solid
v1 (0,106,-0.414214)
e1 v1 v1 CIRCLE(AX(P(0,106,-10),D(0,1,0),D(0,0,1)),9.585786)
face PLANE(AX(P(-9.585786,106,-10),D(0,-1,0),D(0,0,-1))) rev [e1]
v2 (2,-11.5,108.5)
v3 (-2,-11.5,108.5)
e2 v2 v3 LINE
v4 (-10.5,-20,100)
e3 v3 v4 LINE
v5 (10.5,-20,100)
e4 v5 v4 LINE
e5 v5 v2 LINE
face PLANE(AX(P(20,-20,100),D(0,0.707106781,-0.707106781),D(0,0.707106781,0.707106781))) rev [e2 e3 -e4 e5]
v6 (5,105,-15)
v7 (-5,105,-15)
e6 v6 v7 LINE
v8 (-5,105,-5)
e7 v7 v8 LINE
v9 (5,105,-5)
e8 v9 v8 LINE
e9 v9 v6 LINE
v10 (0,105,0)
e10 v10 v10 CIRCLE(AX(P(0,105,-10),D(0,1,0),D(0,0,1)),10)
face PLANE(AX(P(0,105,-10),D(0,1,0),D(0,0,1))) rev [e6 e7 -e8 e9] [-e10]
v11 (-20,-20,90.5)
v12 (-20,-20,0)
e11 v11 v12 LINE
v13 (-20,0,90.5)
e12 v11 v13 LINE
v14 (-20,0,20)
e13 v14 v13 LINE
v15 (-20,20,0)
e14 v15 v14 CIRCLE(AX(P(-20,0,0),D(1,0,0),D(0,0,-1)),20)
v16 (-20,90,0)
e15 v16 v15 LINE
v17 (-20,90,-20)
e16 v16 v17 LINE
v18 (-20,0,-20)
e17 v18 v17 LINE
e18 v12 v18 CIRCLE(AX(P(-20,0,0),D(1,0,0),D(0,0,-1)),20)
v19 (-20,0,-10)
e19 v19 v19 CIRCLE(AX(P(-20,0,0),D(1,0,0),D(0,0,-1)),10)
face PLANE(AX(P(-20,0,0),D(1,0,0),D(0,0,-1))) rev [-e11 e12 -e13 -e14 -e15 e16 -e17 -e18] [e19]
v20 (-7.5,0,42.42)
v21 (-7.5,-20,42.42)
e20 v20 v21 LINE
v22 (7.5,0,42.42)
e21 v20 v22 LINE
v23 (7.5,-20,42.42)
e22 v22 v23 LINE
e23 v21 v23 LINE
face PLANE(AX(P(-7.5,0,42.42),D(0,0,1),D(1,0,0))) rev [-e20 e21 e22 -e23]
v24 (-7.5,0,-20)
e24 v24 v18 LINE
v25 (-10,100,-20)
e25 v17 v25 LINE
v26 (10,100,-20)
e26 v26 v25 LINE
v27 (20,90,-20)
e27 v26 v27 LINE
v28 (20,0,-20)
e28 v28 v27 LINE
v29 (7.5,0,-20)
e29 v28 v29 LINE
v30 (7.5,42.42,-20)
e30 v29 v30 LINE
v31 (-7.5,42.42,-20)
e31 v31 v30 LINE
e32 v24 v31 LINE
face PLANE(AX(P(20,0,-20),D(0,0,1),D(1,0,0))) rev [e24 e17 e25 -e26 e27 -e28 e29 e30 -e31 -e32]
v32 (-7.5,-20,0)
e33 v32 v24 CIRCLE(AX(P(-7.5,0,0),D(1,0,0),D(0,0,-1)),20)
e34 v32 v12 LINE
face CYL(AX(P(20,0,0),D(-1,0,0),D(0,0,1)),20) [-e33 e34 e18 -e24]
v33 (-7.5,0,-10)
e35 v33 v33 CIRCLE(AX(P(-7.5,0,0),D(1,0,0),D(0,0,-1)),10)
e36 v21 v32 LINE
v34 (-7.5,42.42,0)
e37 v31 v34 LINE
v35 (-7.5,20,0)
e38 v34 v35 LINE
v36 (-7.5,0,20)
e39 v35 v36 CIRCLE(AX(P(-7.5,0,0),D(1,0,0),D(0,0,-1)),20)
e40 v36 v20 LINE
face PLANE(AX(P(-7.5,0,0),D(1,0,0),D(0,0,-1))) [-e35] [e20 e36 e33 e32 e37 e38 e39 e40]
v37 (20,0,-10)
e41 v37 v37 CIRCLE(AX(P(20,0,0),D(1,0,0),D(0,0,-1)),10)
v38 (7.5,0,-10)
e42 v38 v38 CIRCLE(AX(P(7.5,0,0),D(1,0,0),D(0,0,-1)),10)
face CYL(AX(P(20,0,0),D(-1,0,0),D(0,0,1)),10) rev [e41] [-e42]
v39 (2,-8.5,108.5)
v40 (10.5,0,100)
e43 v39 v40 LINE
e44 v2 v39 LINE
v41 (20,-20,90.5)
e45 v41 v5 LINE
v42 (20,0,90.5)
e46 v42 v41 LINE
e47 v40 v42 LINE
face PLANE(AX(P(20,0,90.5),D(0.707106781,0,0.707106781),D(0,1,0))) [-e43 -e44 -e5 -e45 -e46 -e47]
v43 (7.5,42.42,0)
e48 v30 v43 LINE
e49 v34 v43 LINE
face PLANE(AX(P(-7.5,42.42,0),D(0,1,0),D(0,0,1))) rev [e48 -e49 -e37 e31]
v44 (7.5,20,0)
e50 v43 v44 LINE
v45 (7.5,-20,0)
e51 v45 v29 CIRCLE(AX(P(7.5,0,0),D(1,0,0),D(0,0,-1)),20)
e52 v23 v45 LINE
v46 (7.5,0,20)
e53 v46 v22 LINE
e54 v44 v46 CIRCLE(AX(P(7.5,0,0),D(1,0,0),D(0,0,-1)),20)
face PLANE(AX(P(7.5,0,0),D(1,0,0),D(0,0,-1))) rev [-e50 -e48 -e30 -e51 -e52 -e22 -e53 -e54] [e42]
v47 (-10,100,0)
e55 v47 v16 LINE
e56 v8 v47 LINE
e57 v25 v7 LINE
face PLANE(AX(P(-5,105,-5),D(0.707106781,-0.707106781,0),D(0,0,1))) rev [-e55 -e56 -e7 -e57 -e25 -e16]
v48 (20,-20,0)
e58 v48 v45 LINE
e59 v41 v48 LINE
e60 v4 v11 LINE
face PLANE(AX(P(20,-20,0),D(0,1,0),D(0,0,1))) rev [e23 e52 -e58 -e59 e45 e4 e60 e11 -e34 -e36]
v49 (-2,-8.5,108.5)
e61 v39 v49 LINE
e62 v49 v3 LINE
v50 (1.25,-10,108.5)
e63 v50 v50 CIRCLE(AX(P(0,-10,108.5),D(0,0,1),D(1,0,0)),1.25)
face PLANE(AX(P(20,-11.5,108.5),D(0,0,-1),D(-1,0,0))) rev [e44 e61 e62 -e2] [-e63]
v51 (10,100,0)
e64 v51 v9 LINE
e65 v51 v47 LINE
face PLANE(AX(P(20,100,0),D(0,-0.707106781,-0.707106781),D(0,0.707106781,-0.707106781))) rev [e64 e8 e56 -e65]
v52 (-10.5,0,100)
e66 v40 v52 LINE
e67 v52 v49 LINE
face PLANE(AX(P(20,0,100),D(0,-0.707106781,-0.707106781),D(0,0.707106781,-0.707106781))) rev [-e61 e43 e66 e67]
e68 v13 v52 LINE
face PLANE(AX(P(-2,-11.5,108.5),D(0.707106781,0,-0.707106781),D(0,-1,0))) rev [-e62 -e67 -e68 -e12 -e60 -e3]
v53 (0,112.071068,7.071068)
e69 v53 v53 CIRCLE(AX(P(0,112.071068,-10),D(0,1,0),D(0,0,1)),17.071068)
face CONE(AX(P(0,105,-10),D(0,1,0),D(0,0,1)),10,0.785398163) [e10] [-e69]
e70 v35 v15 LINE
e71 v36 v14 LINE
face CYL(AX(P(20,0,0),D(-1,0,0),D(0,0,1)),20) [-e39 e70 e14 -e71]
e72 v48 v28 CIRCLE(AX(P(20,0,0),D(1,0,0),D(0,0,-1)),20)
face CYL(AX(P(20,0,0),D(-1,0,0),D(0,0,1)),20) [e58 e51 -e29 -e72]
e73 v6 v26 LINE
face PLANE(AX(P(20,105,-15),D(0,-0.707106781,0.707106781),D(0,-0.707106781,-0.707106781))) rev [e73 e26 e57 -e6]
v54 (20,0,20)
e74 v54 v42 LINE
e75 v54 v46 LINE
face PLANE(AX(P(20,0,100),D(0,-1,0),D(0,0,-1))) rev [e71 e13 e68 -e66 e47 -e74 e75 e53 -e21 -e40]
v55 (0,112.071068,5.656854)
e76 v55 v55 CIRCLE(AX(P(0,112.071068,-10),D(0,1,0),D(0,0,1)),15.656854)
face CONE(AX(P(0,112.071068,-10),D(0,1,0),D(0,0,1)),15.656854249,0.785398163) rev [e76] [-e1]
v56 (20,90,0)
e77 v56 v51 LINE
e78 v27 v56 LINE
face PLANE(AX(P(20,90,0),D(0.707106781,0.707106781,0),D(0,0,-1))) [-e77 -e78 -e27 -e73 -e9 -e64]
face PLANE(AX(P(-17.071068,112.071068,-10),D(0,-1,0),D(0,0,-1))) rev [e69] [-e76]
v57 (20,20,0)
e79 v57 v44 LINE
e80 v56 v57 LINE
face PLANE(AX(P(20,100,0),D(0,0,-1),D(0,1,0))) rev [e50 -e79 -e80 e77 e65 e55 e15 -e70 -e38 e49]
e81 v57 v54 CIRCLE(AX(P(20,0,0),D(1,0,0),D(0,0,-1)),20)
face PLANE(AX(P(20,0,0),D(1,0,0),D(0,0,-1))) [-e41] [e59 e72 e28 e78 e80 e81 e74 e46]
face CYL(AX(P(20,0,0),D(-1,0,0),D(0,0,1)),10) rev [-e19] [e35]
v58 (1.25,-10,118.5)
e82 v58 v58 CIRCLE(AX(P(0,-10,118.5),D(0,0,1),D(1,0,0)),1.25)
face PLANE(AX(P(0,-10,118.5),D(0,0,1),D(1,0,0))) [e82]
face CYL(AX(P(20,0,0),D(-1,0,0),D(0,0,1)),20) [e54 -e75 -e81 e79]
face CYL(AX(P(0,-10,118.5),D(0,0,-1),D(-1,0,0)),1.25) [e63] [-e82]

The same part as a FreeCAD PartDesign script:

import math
import FreeCAD as App
import Part
import Sketcher

V = App.Vector
Q = App.Units.Quantity


def edges_at(feature, points):
    """Names of the edges that pass closest to the given points."""
    edges = feature.Shape.Edges
    near = lambda p: min(range(len(edges)), key=lambda i: edges[i].distToShape(Part.Vertex(*p))[0])
    return sorted({f"Edge{near(p) + 1}" for p in points})


def add_polygon(sketch, points):
    """Adds a closed chain of lines whose ends are joined by coincident constraints."""
    first, n = sketch.GeometryCount, len(points)
    for a, b in zip(points, points[1:] + points[:1]):
        sketch.addGeometry(Part.LineSegment(App.Vector(*a, 0), App.Vector(*b, 0)), False)
    for i in range(n):
        sketch.addConstraint(Sketcher.Constraint("Coincident", first + i, 2, first + (i + 1) % n, 1))

doc = App.newDocument("Part")
body = doc.addObject("PartDesign::Body", "Body")

sketch1 = body.newObject("Sketcher::SketchObject", "Sketch")
sketch1.AttachmentSupport = (doc.getObject("YZ_Plane"), [""])
sketch1.MapMode = "FlatFace"
sketch1.addGeometry(Part.LineSegment(V(0, 100, 0), V(-8.5, 108.5, 0)), False)
sketch1.addGeometry(Part.LineSegment(V(-8.5, 108.5, 0), V(-11.5, 108.5, 0)), False)
sketch1.addGeometry(Part.LineSegment(V(-11.5, 108.5, 0), V(-20, 100, 0)), False)
sketch1.addGeometry(Part.LineSegment(V(-20, 100, 0), V(-20, 0, 0)), False)
sketch1.addGeometry(Part.ArcOfCircle(Part.Circle(V(0, 0, 0), V(0, 0, 1), 20), math.radians(180), math.radians(270)), False)
sketch1.addGeometry(Part.LineSegment(V(0, -20, 0), V(100, -20, 0)), False)
sketch1.addGeometry(Part.LineSegment(V(100, -20, 0), V(105, -15, 0)), False)
sketch1.addGeometry(Part.LineSegment(V(105, -15, 0), V(105, -5, 0)), False)
sketch1.addGeometry(Part.LineSegment(V(105, -5, 0), V(100, 0, 0)), False)
sketch1.addGeometry(Part.LineSegment(V(100, 0, 0), V(20, 0, 0)), False)
sketch1.addGeometry(Part.ArcOfCircle(Part.Circle(V(0, 0, 0), V(0, 0, 1), 20), math.radians(0), math.radians(90)), False)
sketch1.addGeometry(Part.LineSegment(V(0, 20, 0), V(0, 100, 0)), False)
sketch1.addGeometry(Part.Circle(V(0, 0, 0), V(0, 0, 1), 10), False)
sketch1.addConstraint(Sketcher.Constraint("Coincident", 0, 2, 1, 1))
sketch1.addConstraint(Sketcher.Constraint("Coincident", 1, 2, 2, 1))
sketch1.addConstraint(Sketcher.Constraint("Coincident", 2, 2, 3, 1))
sketch1.addConstraint(Sketcher.Constraint("Tangent", 3, 2, 4, 1))
sketch1.addConstraint(Sketcher.Constraint("Tangent", 4, 2, 5, 1))
sketch1.addConstraint(Sketcher.Constraint("Coincident", 5, 2, 6, 1))
sketch1.addConstraint(Sketcher.Constraint("Coincident", 6, 2, 7, 1))
sketch1.addConstraint(Sketcher.Constraint("Coincident", 7, 2, 8, 1))
sketch1.addConstraint(Sketcher.Constraint("Coincident", 8, 2, 9, 1))
sketch1.addConstraint(Sketcher.Constraint("Coincident", 9, 2, 10, 1))
sketch1.addConstraint(Sketcher.Constraint("Coincident", 10, 2, 11, 1))
sketch1.addConstraint(Sketcher.Constraint("Coincident", 11, 2, 0, 1))
sketch1.addConstraint(Sketcher.Constraint("Horizontal", 1))
sketch1.addConstraint(Sketcher.Constraint("Vertical", 3))
sketch1.addConstraint(Sketcher.Constraint("Horizontal", 5))
sketch1.addConstraint(Sketcher.Constraint("Vertical", 7))
sketch1.addConstraint(Sketcher.Constraint("Horizontal", 9))
sketch1.addConstraint(Sketcher.Constraint("Vertical", 11))
sketch1.addConstraint(Sketcher.Constraint("Coincident", 4, 3, -1, 1))
sketch1.addConstraint(Sketcher.Constraint("Coincident", 10, 3, -1, 1))
sketch1.addConstraint(Sketcher.Constraint("Coincident", 12, 3, -1, 1))
sketch1.addConstraint(Sketcher.Constraint("Equal", 4, 10))
sketch1.addConstraint(Sketcher.Constraint("PointOnObject", 8, 2, -1))
sketch1.addConstraint(Sketcher.Constraint("PointOnObject", 10, 2, -2))
sketch1.addConstraint(Sketcher.Constraint("Perpendicular", 0, 2))
sketch1.addConstraint(Sketcher.Constraint("Parallel", 2, 6))
sketch1.addConstraint(Sketcher.Constraint("Perpendicular", 6, 8))
sketch1.addConstraint(Sketcher.Constraint("Horizontal", 2, 2, 11, 2))
sketch1.addConstraint(Sketcher.Constraint("Vertical", 5, 2, 8, 2))
sketch1.addConstraint(Sketcher.Constraint("Equal", 5, 3))
sketch1.addConstraint(Sketcher.Constraint("Equal", 0, 2))
sketch1.addConstraint(Sketcher.Constraint("Diameter", 12, Q("20 mm")))
sketch1.addConstraint(Sketcher.Constraint("Radius", 4, Q("20 mm")))
sketch1.addConstraint(Sketcher.Constraint("DistanceX", 1, 2, 1, 1, Q("3 mm")))
sketch1.addConstraint(Sketcher.Constraint("DistanceX", 5, 1, 5, 2, Q("100 mm")))
sketch1.addConstraint(Sketcher.Constraint("DistanceY", 7, 1, 7, 2, Q("10 mm")))
pad1 = body.newObject("PartDesign::Pad", "Pad")
pad1.Profile = sketch1
pad1.Length = 40
pad1.Midplane = True
doc.recompute()

chamfer = body.newObject("PartDesign::Chamfer", "Chamfer")
chamfer.Base = (pad1, edges_at(pad1, [(-20, -10, 108.5), (20, -10, 108.5)]))
chamfer.Size = 18

sketch2 = body.newObject("Sketcher::SketchObject", "Sketch001")
sketch2.AttachmentSupport = (doc.getObject("YZ_Plane"), [""])
sketch2.MapMode = "FlatFace"
sketch2.addGeometry(Part.LineSegment(V(-20, 42, 0), V(-20, 0, 0)), False)
sketch2.addGeometry(Part.ArcOfCircle(Part.Circle(V(0, 0, 0), V(0, 0, 1), 20), math.radians(180), math.radians(270)), False)
sketch2.addGeometry(Part.LineSegment(V(0, -20, 0), V(42, -20, 0)), False)
sketch2.addGeometry(Part.LineSegment(V(42, -20, 0), V(42, 0, 0)), False)
sketch2.addGeometry(Part.LineSegment(V(42, 0, 0), V(20, 0, 0)), False)
sketch2.addGeometry(Part.ArcOfCircle(Part.Circle(V(0, 0, 0), V(0, 0, 1), 20), math.radians(0), math.radians(90)), False)
sketch2.addGeometry(Part.LineSegment(V(0, 20, 0), V(0, 42, 0)), False)
sketch2.addGeometry(Part.LineSegment(V(0, 42, 0), V(-20, 42, 0)), False)
sketch2.addConstraint(Sketcher.Constraint("Tangent", 0, 2, 1, 1))
sketch2.addConstraint(Sketcher.Constraint("Tangent", 1, 2, 2, 1))
sketch2.addConstraint(Sketcher.Constraint("Coincident", 2, 2, 3, 1))
sketch2.addConstraint(Sketcher.Constraint("Coincident", 3, 2, 4, 1))
sketch2.addConstraint(Sketcher.Constraint("Coincident", 4, 2, 5, 1))
sketch2.addConstraint(Sketcher.Constraint("Coincident", 5, 2, 6, 1))
sketch2.addConstraint(Sketcher.Constraint("Coincident", 6, 2, 7, 1))
sketch2.addConstraint(Sketcher.Constraint("Coincident", 7, 2, 0, 1))
sketch2.addConstraint(Sketcher.Constraint("Vertical", 0))
sketch2.addConstraint(Sketcher.Constraint("Horizontal", 2))
sketch2.addConstraint(Sketcher.Constraint("Vertical", 3))
sketch2.addConstraint(Sketcher.Constraint("Horizontal", 4))
sketch2.addConstraint(Sketcher.Constraint("Vertical", 6))
sketch2.addConstraint(Sketcher.Constraint("Horizontal", 7))
sketch2.addConstraint(Sketcher.Constraint("Coincident", 1, 3, -1, 1))
sketch2.addConstraint(Sketcher.Constraint("Coincident", 5, 3, -1, 1))
sketch2.addConstraint(Sketcher.Constraint("Equal", 1, 5))
sketch2.addConstraint(Sketcher.Constraint("PointOnObject", 3, 2, -1))
sketch2.addConstraint(Sketcher.Constraint("PointOnObject", 5, 2, -2))
sketch2.addConstraint(Sketcher.Constraint("Equal", 2, 0))
sketch2.addConstraint(Sketcher.Constraint("Radius", 1, Q("20 mm")))
sketch2.addConstraint(Sketcher.Constraint("DistanceX", 2, 1, 2, 2, Q("42.42 mm")))
pocket1 = body.newObject("PartDesign::Pocket", "Pocket")
pocket1.Profile = sketch2
pocket1.Length = 15
pocket1.Midplane = True

sketch3 = body.newObject("Sketcher::SketchObject", "Sketch002")
sketch3.AttachmentSupport = (doc.getObject("XY_Plane"), [""])
sketch3.MapMode = "FlatFace"
sketch3.AttachmentOffset = App.Placement(V(0, 0, 108.5), App.Rotation())
sketch3.addGeometry(Part.Circle(V(0, -10, 0), V(0, 0, 1), 1.2), False)
sketch3.addConstraint(Sketcher.Constraint("PointOnObject", 0, 3, -2))
sketch3.addConstraint(Sketcher.Constraint("Diameter", 0, Q("2.5 mm")))
sketch3.addConstraint(Sketcher.Constraint("DistanceY", 0, 3, -1, 1, Q("10 mm")))
pad2 = body.newObject("PartDesign::Pad", "Pad001")
pad2.Profile = sketch3
pad2.Length = 10
doc.recompute()

chamfer2 = body.newObject("PartDesign::Chamfer", "Chamfer001")
chamfer2.Base = (pad2, edges_at(pad2, [(-20, 105, -10), (20, 105, -10)]))
chamfer2.Size = 15

sketch4 = body.newObject("Sketcher::SketchObject", "Sketch003")
sketch4.AttachmentSupport = (doc.getObject("XY_Plane"), [""])
sketch4.MapMode = "FlatFace"
sketch4.AttachmentOffset = App.Placement(V(0, 0, -10), App.Rotation())
add_polygon(sketch4, [(0, 105), (-10, 105), (-17.1, 112.1), (-15.7, 112.1), (-9.6, 106), (0, 106)])
sketch4.addConstraint(Sketcher.Constraint("Horizontal", 0))
sketch4.addConstraint(Sketcher.Constraint("Horizontal", 2))
sketch4.addConstraint(Sketcher.Constraint("Horizontal", 4))
sketch4.addConstraint(Sketcher.Constraint("Vertical", 5))
sketch4.addConstraint(Sketcher.Constraint("PointOnObject", 4, 2, -2))
sketch4.addConstraint(Sketcher.Constraint("Parallel", 1, 3))
sketch4.addConstraint(Sketcher.Constraint("DistanceX", 0, 2, 0, 1, Q("10 mm")))
sketch4.addConstraint(Sketcher.Constraint("DistanceY", 5, 2, 5, 1, Q("1 mm")))
sketch4.addConstraint(Sketcher.Constraint("Angle", 1, Q("135 deg")))
sketch4.addConstraint(Sketcher.Constraint("Distance", 1, Q("10 mm")))
sketch4.addConstraint(Sketcher.Constraint("DistanceY", -1, 1, 0, 2, Q("105 mm")))
sketch4.addConstraint(Sketcher.Constraint("DistanceX", 2, 1, 2, 2, Q("1.414214 mm")))
revolution = body.newObject("PartDesign::Revolution", "Revolution")
revolution.Profile = sketch4
revolution.ReferenceAxis = (sketch4, ["V_Axis"])
revolution.Angle = 360

doc.recompute()
